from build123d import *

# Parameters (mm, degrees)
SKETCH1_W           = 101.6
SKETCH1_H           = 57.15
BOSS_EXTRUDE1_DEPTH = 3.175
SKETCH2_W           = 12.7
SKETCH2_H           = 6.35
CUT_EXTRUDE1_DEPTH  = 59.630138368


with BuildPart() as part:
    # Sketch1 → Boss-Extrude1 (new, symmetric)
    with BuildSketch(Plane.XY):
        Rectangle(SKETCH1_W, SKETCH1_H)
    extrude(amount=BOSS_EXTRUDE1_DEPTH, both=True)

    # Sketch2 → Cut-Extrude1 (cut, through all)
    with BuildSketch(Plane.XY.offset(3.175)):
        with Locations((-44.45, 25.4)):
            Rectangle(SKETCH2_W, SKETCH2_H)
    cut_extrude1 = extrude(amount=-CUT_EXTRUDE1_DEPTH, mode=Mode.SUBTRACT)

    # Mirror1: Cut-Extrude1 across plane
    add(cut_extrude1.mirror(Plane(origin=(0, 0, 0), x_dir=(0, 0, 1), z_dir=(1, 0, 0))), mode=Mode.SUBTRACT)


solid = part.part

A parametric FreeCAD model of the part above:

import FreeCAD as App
import Part
import Sketcher

V = App.Vector
Q = App.Units.Quantity


def add_polygon(sketch, points):
    """Adds a closed chain of lines whose ends are joined by coincident constraints."""
    first, n = sketch.GeometryCount, len(points)
    for a, b in zip(points, points[1:] + points[:1]):
        sketch.addGeometry(Part.LineSegment(App.Vector(*a, 0), App.Vector(*b, 0)), False)
    for i in range(n):
        sketch.addConstraint(Sketcher.Constraint("Coincident", first + i, 2, first + (i + 1) % n, 1))

doc = App.newDocument("Part")
params = doc.addObject("Spreadsheet::Sheet", "Params")
for row, (alias, value) in enumerate([
    ("sketch1_width", "4 in"),
    ("sketch1_height", "2.25 in"),
    ("pad1_length", "0.25 in"),
    ("sketch2_width", "0.5 in"),
    ("sketch2_height", "0.25 in"),
], start=1):
    params.set(f"A{row}", alias)
    params.set(f"B{row}", "=" + value)
    params.setAlias(f"B{row}", alias)

body = doc.addObject("PartDesign::Body", "Body")

# Sketch on XY plane
sketch1 = doc.addObject("Sketcher::SketchObject", "Sketch")
body.addObject(sketch1)
sketch1.AttachmentSupport = (doc.XY_Plane, [""])
sketch1.MapMode = "FlatFace"
add_polygon(sketch1, [(-51, 29), (-51, -29), (51, -29), (51, 29)])  # lines 0-3
sketch1.addConstraint(Sketcher.Constraint("Vertical", 0))
sketch1.addConstraint(Sketcher.Constraint("Horizontal", 1))
sketch1.addConstraint(Sketcher.Constraint("Vertical", 2))
sketch1.addConstraint(Sketcher.Constraint("Horizontal", 3))
sketch1.addConstraint(Sketcher.Constraint("Symmetric", 0, 2, 2, 2, -1, 1))
sketch1.addConstraint(Sketcher.Constraint("DistanceX", 1, 1, 1, 2, Q("4 in")))
sketch1.addConstraint(Sketcher.Constraint("DistanceY", 0, 2, 0, 1, Q("2.25 in")))
sketch1.setExpression("Constraints[9]", "Params.sketch1_width")
sketch1.setExpression("Constraints[10]", "Params.sketch1_height")
pad1 = doc.addObject("PartDesign::Pad", "Pad")
body.addObject(pad1)
pad1.Profile = sketch1
pad1.setExpression("Length", "Params.pad1_length")
pad1.Midplane = True

# Sketch on XY plane
sketch2 = doc.addObject("Sketcher::SketchObject", "Sketch001")
body.addObject(sketch2)
sketch2.AttachmentSupport = (doc.XY_Plane, [""])
sketch2.MapMode = "FlatFace"
sketch2.AttachmentOffset = App.Placement(V(0, 0, 0.125 * 25.4), App.Rotation())
add_polygon(sketch2, [(-51, 29), (-51, 22), (-38, 22), (-38, 29)])  # lines 0-3
sketch2.addConstraint(Sketcher.Constraint("Vertical", 0))
sketch2.addConstraint(Sketcher.Constraint("Horizontal", 1))
sketch2.addConstraint(Sketcher.Constraint("Vertical", 2))
sketch2.addConstraint(Sketcher.Constraint("Horizontal", 3))
sketch2.addConstraint(Sketcher.Constraint("DistanceX", 1, 1, 1, 2, Q("0.5 in")))
sketch2.addConstraint(Sketcher.Constraint("DistanceX", 0, 2, -1, 1, Q("2 in")))
sketch2.addConstraint(Sketcher.Constraint("DistanceY", 0, 2, 0, 1, Q("0.25 in")))
sketch2.addConstraint(Sketcher.Constraint("DistanceY", -1, 1, 0, 2, Q("0.875 in")))
sketch2.setExpression("Constraints[8]", "Params.sketch2_width")
sketch2.setExpression("Constraints[10]", "Params.sketch2_height")
pocket1 = doc.addObject("PartDesign::Pocket", "Pocket")
body.addObject(pocket1)
pocket1.Profile = sketch2
pocket1.Type = "ThroughAll"
doc.recompute()

mirrored = doc.addObject("PartDesign::Mirrored", "Mirrored")
body.addObject(mirrored)
mirrored.Originals = [pocket1]
mirrored.MirrorPlane = (doc.YZ_Plane, [""])
body.Tip = mirrored

doc.recompute()
